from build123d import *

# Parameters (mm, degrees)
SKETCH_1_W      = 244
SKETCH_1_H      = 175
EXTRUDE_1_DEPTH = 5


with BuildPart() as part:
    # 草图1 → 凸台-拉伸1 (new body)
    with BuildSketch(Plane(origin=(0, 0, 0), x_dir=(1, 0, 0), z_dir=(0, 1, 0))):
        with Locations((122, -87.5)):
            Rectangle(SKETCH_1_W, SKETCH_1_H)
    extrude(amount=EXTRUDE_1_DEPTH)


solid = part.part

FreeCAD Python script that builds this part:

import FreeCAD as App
import Part
import Sketcher


def add_polygon(sketch, points):
    """Adds a closed chain of lines whose ends are joined by coincident constraints."""
    first, n = sketch.GeometryCount, len(points)
    for a, b in zip(points, points[1:] + points[:1]):
        sketch.addGeometry(Part.LineSegment(App.Vector(*a, 0), App.Vector(*b, 0)), False)
    for i in range(n):
        sketch.addConstraint(Sketcher.Constraint("Coincident", first + i, 2, first + (i + 1) % n, 1))

doc = App.newDocument("Part")
params = doc.addObject("Spreadsheet::Sheet", "Params")
for row, (alias, value) in enumerate([
    ("sketch1_width", "244 mm"),
    ("sketch1_height", "175 mm"),
    ("pad1_length", "5 mm"),
], start=1):
    params.set(f"A{row}", alias)
    params.set(f"B{row}", "=" + value)
    params.setAlias(f"B{row}", alias)

body = doc.addObject("PartDesign::Body", "Body")

# Sketch on XZ plane
sketch1 = doc.addObject("Sketcher::SketchObject", "Sketch")
body.addObject(sketch1)
sketch1.AttachmentSupport = (doc.XZ_Plane, [""])
sketch1.MapMode = "FlatFace"
add_polygon(sketch1, [(0, 0), (0, 175), (244, 175), (244, 0)])  # lines 0-3
sketch1.addConstraint([
    Sketcher.Constraint("Vertical", 0),
    Sketcher.Constraint("Horizontal", 1),
    Sketcher.Constraint("Vertical", 2),
    Sketcher.Constraint("Horizontal", 3),
    Sketcher.Constraint("Coincident", 3, 2, -1, 1),
    Sketcher.Constraint("DistanceX", 1, 1, 1, 2, 244.0),
    Sketcher.Constraint("DistanceY", 0, 1, 0, 2, 175.0),
])
sketch1.setExpression("Constraints[9]", "Params.sketch1_width")
sketch1.setExpression("Constraints[10]", "Params.sketch1_height")
pad1 = doc.addObject("PartDesign::Pad", "Pad")
body.addObject(pad1)
pad1.Profile = sketch1
pad1.setExpression("Length", "Params.pad1_length")
pad1.Reversed = True

doc.recompute()
